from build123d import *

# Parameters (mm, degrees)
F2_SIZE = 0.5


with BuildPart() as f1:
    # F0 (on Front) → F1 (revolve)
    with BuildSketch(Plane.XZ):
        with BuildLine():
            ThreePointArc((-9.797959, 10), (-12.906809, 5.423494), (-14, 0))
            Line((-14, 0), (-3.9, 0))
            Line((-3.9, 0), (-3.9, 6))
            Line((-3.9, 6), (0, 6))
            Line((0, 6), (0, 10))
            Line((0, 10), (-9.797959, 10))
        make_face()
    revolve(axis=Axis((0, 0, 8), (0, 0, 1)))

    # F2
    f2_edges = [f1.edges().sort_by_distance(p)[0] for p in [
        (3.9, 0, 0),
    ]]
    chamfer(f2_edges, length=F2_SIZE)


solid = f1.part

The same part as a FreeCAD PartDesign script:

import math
import FreeCAD as App
import Part
import Sketcher
from FreeCAD import Vector


def edges_at(feature, points):
    """Names of the edges that pass closest to the given points."""
    edges = feature.Shape.Edges
    near = lambda p: min(range(len(edges)), key=lambda i: edges[i].distToShape(Part.Vertex(*p))[0])
    return sorted({f"Edge{near(p) + 1}" for p in points})

doc = App.newDocument("Part")
body = doc.addObject("PartDesign::Body", "Body")

sketch1 = body.newObject("Sketcher::SketchObject", "Sketch")
sketch1.AttachmentSupport = (doc.getObject("XZ_Plane"), [""])
sketch1.MapMode = "FlatFace"
sketch1.addGeometry([
    Part.ArcOfCircle(Part.Circle(Vector(0, 0, 0), Vector(0, 0, 1), 14), math.radians(134), math.radians(180)),
    Part.LineSegment(Vector(-14, 0, 0), Vector(-3.9, 0, 0)),
    Part.LineSegment(Vector(-3.9, 0, 0), Vector(-3.9, 6, 0)),
    Part.LineSegment(Vector(-3.9, 6, 0), Vector(0, 6, 0)),
    Part.LineSegment(Vector(0, 6, 0), Vector(0, 10, 0)),
    Part.LineSegment(Vector(0, 10, 0), Vector(-9.8, 10, 0)),
], False)
sketch1.addConstraint([
    Sketcher.Constraint("Coincident", 0, 2, 1, 1),
    Sketcher.Constraint("Coincident", 1, 2, 2, 1),
    Sketcher.Constraint("Coincident", 2, 2, 3, 1),
    Sketcher.Constraint("Coincident", 3, 2, 4, 1),
    Sketcher.Constraint("Coincident", 4, 2, 5, 1),
    Sketcher.Constraint("Coincident", 5, 2, 0, 1),
    Sketcher.Constraint("Horizontal", 1),
    Sketcher.Constraint("Vertical", 2),
    Sketcher.Constraint("Horizontal", 3),
    Sketcher.Constraint("Vertical", 4),
    Sketcher.Constraint("Horizontal", 5),
    Sketcher.Constraint("Coincident", 0, 3, -1, 1),
    Sketcher.Constraint("PointOnObject", 0, 2, -1),
    Sketcher.Constraint("PointOnObject", 3, 2, -2),
    Sketcher.Constraint("DistanceY", 2, 1, 2, 2, 6.0),
    Sketcher.Constraint("DistanceY", 4, 1, 4, 2, 4.0),
    Sketcher.Constraint("DistanceX", 1, 1, 1, 2, 10.1),
    Sketcher.Constraint("DistanceX", 3, 1, 3, 2, 3.9),
])
revolution = body.newObject("PartDesign::Revolution", "Revolution")
revolution.Profile = sketch1
revolution.ReferenceAxis = (sketch1, ["V_Axis"])
revolution.Angle = 360
doc.recompute()

chamfer = body.newObject("PartDesign::Chamfer", "Chamfer")
chamfer.Base = (revolution, edges_at(revolution, [(3.9, 0, 0)]))
chamfer.Size = 0.5

doc.recompute()
